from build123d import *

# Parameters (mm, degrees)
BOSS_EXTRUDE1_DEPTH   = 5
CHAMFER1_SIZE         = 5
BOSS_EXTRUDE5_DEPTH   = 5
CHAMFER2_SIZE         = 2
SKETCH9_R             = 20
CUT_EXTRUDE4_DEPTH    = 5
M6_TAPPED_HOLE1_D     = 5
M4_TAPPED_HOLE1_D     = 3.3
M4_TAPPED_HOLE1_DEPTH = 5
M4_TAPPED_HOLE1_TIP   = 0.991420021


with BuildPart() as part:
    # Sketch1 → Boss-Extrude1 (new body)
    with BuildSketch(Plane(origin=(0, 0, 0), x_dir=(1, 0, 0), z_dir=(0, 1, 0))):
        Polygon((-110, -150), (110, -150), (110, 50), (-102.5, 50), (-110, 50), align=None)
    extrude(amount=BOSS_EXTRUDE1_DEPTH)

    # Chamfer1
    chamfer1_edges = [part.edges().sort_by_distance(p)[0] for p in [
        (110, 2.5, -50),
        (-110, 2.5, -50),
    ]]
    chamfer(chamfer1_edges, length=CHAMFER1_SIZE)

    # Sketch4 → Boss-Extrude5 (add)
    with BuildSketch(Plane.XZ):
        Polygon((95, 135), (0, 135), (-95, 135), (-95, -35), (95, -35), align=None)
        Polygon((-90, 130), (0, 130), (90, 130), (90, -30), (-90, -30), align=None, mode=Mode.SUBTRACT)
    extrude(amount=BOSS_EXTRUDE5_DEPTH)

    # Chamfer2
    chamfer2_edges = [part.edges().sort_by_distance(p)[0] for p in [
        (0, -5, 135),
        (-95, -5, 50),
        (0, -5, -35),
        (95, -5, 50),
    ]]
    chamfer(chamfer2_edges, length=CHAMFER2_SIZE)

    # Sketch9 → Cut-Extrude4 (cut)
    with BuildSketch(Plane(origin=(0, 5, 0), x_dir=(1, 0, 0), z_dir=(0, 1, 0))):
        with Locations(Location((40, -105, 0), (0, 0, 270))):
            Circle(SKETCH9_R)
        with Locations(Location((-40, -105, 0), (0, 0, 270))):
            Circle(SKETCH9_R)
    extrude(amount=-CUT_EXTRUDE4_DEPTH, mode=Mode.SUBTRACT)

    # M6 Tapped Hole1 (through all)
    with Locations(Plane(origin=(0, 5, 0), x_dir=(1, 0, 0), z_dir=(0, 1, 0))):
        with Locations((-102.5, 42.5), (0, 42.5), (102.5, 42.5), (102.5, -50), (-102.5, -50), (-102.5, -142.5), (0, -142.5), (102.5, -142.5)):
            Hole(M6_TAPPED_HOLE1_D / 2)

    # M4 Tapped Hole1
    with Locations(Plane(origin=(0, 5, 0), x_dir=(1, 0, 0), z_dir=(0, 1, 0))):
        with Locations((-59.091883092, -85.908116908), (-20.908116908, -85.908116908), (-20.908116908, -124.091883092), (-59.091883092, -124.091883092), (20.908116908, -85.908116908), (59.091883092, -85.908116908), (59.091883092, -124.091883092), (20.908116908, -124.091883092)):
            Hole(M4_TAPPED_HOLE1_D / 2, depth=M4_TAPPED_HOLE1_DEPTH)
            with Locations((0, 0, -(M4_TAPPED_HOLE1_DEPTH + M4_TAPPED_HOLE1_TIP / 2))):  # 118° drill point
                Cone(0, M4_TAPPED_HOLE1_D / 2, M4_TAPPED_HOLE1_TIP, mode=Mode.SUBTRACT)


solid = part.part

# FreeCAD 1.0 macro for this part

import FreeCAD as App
import Part
import Sketcher
Q = App.Units.Quantity


def edges_at(feature, points):
    """Names of the edges that pass closest to the given points."""
    edges = feature.Shape.Edges
    near = lambda p: min(range(len(edges)), key=lambda i: edges[i].distToShape(Part.Vertex(*p))[0])
    return sorted({f"Edge{near(p) + 1}" for p in points})

doc = App.newDocument("Part")
body = doc.addObject("PartDesign::Body", "Body")

# Sketch on XZ plane
sketch1 = doc.addObject("Sketcher::SketchObject", "Sketch")
body.addObject(sketch1)
sketch1.AttachmentSupport = (doc.XZ_Plane, [""])
sketch1.MapMode = "FlatFace"
sketch1.addGeometry([
    Part.LineSegment(App.Vector(-110, 150, 0), App.Vector(110, 150, 0)),
    Part.LineSegment(App.Vector(110, 150, 0), App.Vector(110, -50, 0)),
    Part.LineSegment(App.Vector(110, -50, 0), App.Vector(-110, -50, 0)),
    Part.LineSegment(App.Vector(-110, -50, 0), App.Vector(-110, 150, 0)),
], False)
sketch1.addConstraint([
    Sketcher.Constraint("Coincident", 0, 2, 1, 1),
    Sketcher.Constraint("Coincident", 1, 2, 2, 1),
    Sketcher.Constraint("Coincident", 2, 2, 3, 1),
    Sketcher.Constraint("Coincident", 3, 2, 0, 1),
    Sketcher.Constraint("Horizontal", 0),
    Sketcher.Constraint("Vertical", 1),
    Sketcher.Constraint("Horizontal", 2),
    Sketcher.Constraint("Vertical", 3),
    Sketcher.Constraint("DistanceX", 0, 1, 0, 2, Q("220 mm")),
    Sketcher.Constraint("DistanceY", 1, 2, 1, 1, Q("200 mm")),
    Sketcher.Constraint("DistanceX", -1, 1, 0, 2, Q("110 mm")),
    Sketcher.Constraint("DistanceY", -1, 1, 0, 2, Q("150 mm")),
])
pad1 = doc.addObject("PartDesign::Pad", "Pad")
body.addObject(pad1)
pad1.Profile = sketch1
pad1.Length = 5
pad1.Reversed = True
doc.recompute()

chamfer = doc.addObject("PartDesign::Chamfer", "Chamfer")
body.addObject(chamfer)
chamfer.Base = (pad1, edges_at(pad1, [(110, 2.5, -50), (-110, 2.5, -50)]))
chamfer.Size = 5

# Sketch on XZ plane
sketch2 = doc.addObject("Sketcher::SketchObject", "Sketch001")
body.addObject(sketch2)
sketch2.AttachmentSupport = (doc.XZ_Plane, [""])
sketch2.MapMode = "FlatFace"
sketch2.addGeometry([
    Part.LineSegment(App.Vector(95, 135, 0), App.Vector(-95, 135, 0)),  # 0
    Part.LineSegment(App.Vector(-95, 135, 0), App.Vector(-95, -35, 0)),  # 1
    Part.LineSegment(App.Vector(-95, -35, 0), App.Vector(95, -35, 0)),  # 2
    Part.LineSegment(App.Vector(95, -35, 0), App.Vector(95, 135, 0)),  # 3
    Part.LineSegment(App.Vector(-90, -30, 0), App.Vector(-90, 130, 0)),  # 4
    Part.LineSegment(App.Vector(-90, 130, 0), App.Vector(90, 130, 0)),  # 5
    Part.LineSegment(App.Vector(90, 130, 0), App.Vector(90, -30, 0)),  # 6
    Part.LineSegment(App.Vector(90, -30, 0), App.Vector(-90, -30, 0)),  # 7
], False)
sketch2.addConstraint([
    Sketcher.Constraint("Coincident", 0, 2, 1, 1),
    Sketcher.Constraint("Coincident", 1, 2, 2, 1),
    Sketcher.Constraint("Coincident", 2, 2, 3, 1),
    Sketcher.Constraint("Coincident", 3, 2, 0, 1),
    Sketcher.Constraint("Coincident", 4, 2, 5, 1),
    Sketcher.Constraint("Coincident", 5, 2, 6, 1),
    Sketcher.Constraint("Coincident", 6, 2, 7, 1),
    Sketcher.Constraint("Coincident", 7, 2, 4, 1),
    Sketcher.Constraint("Horizontal", 0),
    Sketcher.Constraint("Vertical", 1),
    Sketcher.Constraint("Horizontal", 2),
    Sketcher.Constraint("Vertical", 3),
    Sketcher.Constraint("Vertical", 4),
    Sketcher.Constraint("Horizontal", 5),
    Sketcher.Constraint("Vertical", 6),
    Sketcher.Constraint("Horizontal", 7),
    Sketcher.Constraint("DistanceX", 0, 2, 0, 1, Q("190 mm")),
    Sketcher.Constraint("DistanceX", 5, 1, 5, 2, Q("180 mm")),
    Sketcher.Constraint("DistanceY", 1, 2, 1, 1, Q("170 mm")),
    Sketcher.Constraint("DistanceY", 4, 1, 4, 2, Q("160 mm")),
    Sketcher.Constraint("DistanceX", 0, 2, -1, 1, Q("95 mm")),
    Sketcher.Constraint("DistanceY", -1, 1, 0, 2, Q("135 mm")),
    Sketcher.Constraint("DistanceX", 4, 2, -1, 1, Q("90 mm")),
    Sketcher.Constraint("DistanceY", -1, 1, 4, 2, Q("130 mm")),
])
pad2 = doc.addObject("PartDesign::Pad", "Pad001")
body.addObject(pad2)
pad2.Profile = sketch2
pad2.Length = 5
doc.recompute()

chamfer2 = doc.addObject("PartDesign::Chamfer", "Chamfer001")
body.addObject(chamfer2)
chamfer2.Base = (pad2, edges_at(pad2, [
    (0, -5, 135),
    (-95, -5, 50),
    (0, -5, -35),
    (95, -5, 50),
]))
chamfer2.Size = 2

# Sketch on XZ plane
sketch3 = doc.addObject("Sketcher::SketchObject", "Sketch002")
body.addObject(sketch3)
sketch3.AttachmentSupport = (doc.XZ_Plane, [""])
sketch3.MapMode = "FlatFace"
sketch3.AttachmentOffset = App.Placement(App.Vector(0, 0, -5), App.Rotation())
sketch3.addGeometry([
    Part.Circle(App.Vector(40, 105, 0), App.Vector(0, 0, 1), 20),
    Part.Circle(App.Vector(-40, 105, 0), App.Vector(0, 0, 1), 20),
], False)
sketch3.addConstraint([
    Sketcher.Constraint("Equal", 0, 1),
    Sketcher.Constraint("Symmetric", 0, 3, 1, 3, -2),
    Sketcher.Constraint("Diameter", 0, Q("40 mm")),
    Sketcher.Constraint("DistanceX", -1, 1, 0, 3, Q("40 mm")),
    Sketcher.Constraint("DistanceY", -1, 1, 0, 3, Q("105 mm")),
])
pocket1 = doc.addObject("PartDesign::Pocket", "Pocket")
body.addObject(pocket1)
pocket1.Profile = sketch3
pocket1.Length = 5
pocket1.Reversed = True

# Sketch on XZ plane
sketch4 = doc.addObject("Sketcher::SketchObject", "Sketch003")
body.addObject(sketch4)
sketch4.AttachmentSupport = (doc.XZ_Plane, [""])
sketch4.MapMode = "FlatFace"
sketch4.AttachmentOffset = App.Placement(App.Vector(0, 0, -5), App.Rotation())
sketch4.addGeometry([
    Part.Circle(App.Vector(-102.5, -42.5, 0), App.Vector(0, 0, 1), 2.5),  # 0
    Part.Circle(App.Vector(0, -42.5, 0), App.Vector(0, 0, 1), 2.5),  # 1
    Part.Circle(App.Vector(102.5, -42.5, 0), App.Vector(0, 0, 1), 2.5),  # 2
    Part.Circle(App.Vector(102.5, 50, 0), App.Vector(0, 0, 1), 2.5),  # 3
    Part.Circle(App.Vector(-102.5, 50, 0), App.Vector(0, 0, 1), 2.5),  # 4
    Part.Circle(App.Vector(-102.5, 142.5, 0), App.Vector(0, 0, 1), 2.5),  # 5
    Part.Circle(App.Vector(0, 142.5, 0), App.Vector(0, 0, 1), 2.5),  # 6
    Part.Circle(App.Vector(102.5, 142.5, 0), App.Vector(0, 0, 1), 2.5),  # 7
], False)
sketch4.addConstraint([
    Sketcher.Constraint("Equal", 0, 1),
    Sketcher.Constraint("Equal", 1, 2),
    Sketcher.Constraint("Equal", 2, 3),
    Sketcher.Constraint("Equal", 3, 4),
    Sketcher.Constraint("Equal", 4, 5),
    Sketcher.Constraint("Equal", 5, 6),
    Sketcher.Constraint("Equal", 6, 7),
    Sketcher.Constraint("Symmetric", 0, 3, 2, 3, -2),
    Sketcher.Constraint("Symmetric", 3, 3, 4, 3, -2),
    Sketcher.Constraint("Symmetric", 5, 3, 7, 3, -2),
    Sketcher.Constraint("PointOnObject", 1, 3, -2),
    Sketcher.Constraint("PointOnObject", 6, 3, -2),
    Sketcher.Constraint("Horizontal", 0, 3, 1, 3),
    Sketcher.Constraint("Horizontal", 5, 3, 6, 3),
    Sketcher.Constraint("Vertical", 2, 3, 3, 3),
    Sketcher.Constraint("Vertical", 4, 3, 5, 3),
    Sketcher.Constraint("Diameter", 0, Q("5 mm")),
    Sketcher.Constraint("DistanceY", -1, 1, 3, 3, Q("50 mm")),
    Sketcher.Constraint("DistanceX", 0, 3, 2, 3, Q("205 mm")),
    Sketcher.Constraint("DistanceY", 0, 3, 5, 3, Q("185 mm")),
    Sketcher.Constraint("DistanceY", 0, 3, -1, 1, Q("42.5 mm")),
])
doc.recompute()
hole = doc.addObject("PartDesign::Hole", "Hole")
body.addObject(hole)
hole.Profile = sketch4
hole.ThreadType = "None"
hole.Diameter = 5
hole.DepthType = "ThroughAll"
hole.Reversed = True

# Sketch on XZ plane
sketch5 = doc.addObject("Sketcher::SketchObject", "Sketch004")
body.addObject(sketch5)
sketch5.AttachmentSupport = (doc.XZ_Plane, [""])
sketch5.MapMode = "FlatFace"
sketch5.AttachmentOffset = App.Placement(App.Vector(0, 0, -5), App.Rotation())
sketch5.addGeometry([
    Part.Circle(App.Vector(-59.1, 85.9, 0), App.Vector(0, 0, 1), 1.6),  # 0
    Part.Circle(App.Vector(-20.9, 85.9, 0), App.Vector(0, 0, 1), 1.6),  # 1
    Part.Circle(App.Vector(-20.9, 124.1, 0), App.Vector(0, 0, 1), 1.6),  # 2
    Part.Circle(App.Vector(-59.1, 124.1, 0), App.Vector(0, 0, 1), 1.6),  # 3
    Part.Circle(App.Vector(20.9, 85.9, 0), App.Vector(0, 0, 1), 1.6),  # 4
    Part.Circle(App.Vector(59.1, 85.9, 0), App.Vector(0, 0, 1), 1.6),  # 5
    Part.Circle(App.Vector(59.1, 124.1, 0), App.Vector(0, 0, 1), 1.6),  # 6
    Part.Circle(App.Vector(20.9, 124.1, 0), App.Vector(0, 0, 1), 1.6),  # 7
], False)
sketch5.addConstraint([
    Sketcher.Constraint("Equal", 0, 1),
    Sketcher.Constraint("Equal", 1, 2),
    Sketcher.Constraint("Equal", 2, 3),
    Sketcher.Constraint("Equal", 3, 4),
    Sketcher.Constraint("Equal", 4, 5),
    Sketcher.Constraint("Equal", 5, 6),
    Sketcher.Constraint("Equal", 6, 7),
    Sketcher.Constraint("Symmetric", 1, 3, 4, 3, -2),
    Sketcher.Constraint("Symmetric", 0, 3, 5, 3, -2),
    Sketcher.Constraint("Symmetric", 3, 3, 6, 3, -2),
    Sketcher.Constraint("Symmetric", 2, 3, 7, 3, -2),
    Sketcher.Constraint("Horizontal", 0, 3, 1, 3),
    Sketcher.Constraint("Horizontal", 2, 3, 3, 3),
    Sketcher.Constraint("Vertical", 1, 3, 2, 3),
    Sketcher.Constraint("Vertical", 0, 3, 3, 3),
    Sketcher.Constraint("Diameter", 0, Q("3.3 mm")),
    Sketcher.Constraint("DistanceX", 0, 3, 4, 3, Q("80 mm")),
    Sketcher.Constraint("DistanceX", 0, 3, -1, 1, Q("59.091883 mm")),
    Sketcher.Constraint("DistanceY", -1, 1, 0, 3, Q("85.908117 mm")),
    Sketcher.Constraint("DistanceY", -1, 1, 2, 3, Q("124.091883 mm")),
])
doc.recompute()
hole2 = doc.addObject("PartDesign::Hole", "Hole001")
body.addObject(hole2)
hole2.Profile = sketch5
hole2.ThreadType = "None"
hole2.Diameter = 3.3
hole2.DepthType = "Dimension"
hole2.Depth = 5
hole2.DrillPoint = "Angled"
hole2.DrillPointAngle = 118
hole2.Reversed = True

doc.recompute()
